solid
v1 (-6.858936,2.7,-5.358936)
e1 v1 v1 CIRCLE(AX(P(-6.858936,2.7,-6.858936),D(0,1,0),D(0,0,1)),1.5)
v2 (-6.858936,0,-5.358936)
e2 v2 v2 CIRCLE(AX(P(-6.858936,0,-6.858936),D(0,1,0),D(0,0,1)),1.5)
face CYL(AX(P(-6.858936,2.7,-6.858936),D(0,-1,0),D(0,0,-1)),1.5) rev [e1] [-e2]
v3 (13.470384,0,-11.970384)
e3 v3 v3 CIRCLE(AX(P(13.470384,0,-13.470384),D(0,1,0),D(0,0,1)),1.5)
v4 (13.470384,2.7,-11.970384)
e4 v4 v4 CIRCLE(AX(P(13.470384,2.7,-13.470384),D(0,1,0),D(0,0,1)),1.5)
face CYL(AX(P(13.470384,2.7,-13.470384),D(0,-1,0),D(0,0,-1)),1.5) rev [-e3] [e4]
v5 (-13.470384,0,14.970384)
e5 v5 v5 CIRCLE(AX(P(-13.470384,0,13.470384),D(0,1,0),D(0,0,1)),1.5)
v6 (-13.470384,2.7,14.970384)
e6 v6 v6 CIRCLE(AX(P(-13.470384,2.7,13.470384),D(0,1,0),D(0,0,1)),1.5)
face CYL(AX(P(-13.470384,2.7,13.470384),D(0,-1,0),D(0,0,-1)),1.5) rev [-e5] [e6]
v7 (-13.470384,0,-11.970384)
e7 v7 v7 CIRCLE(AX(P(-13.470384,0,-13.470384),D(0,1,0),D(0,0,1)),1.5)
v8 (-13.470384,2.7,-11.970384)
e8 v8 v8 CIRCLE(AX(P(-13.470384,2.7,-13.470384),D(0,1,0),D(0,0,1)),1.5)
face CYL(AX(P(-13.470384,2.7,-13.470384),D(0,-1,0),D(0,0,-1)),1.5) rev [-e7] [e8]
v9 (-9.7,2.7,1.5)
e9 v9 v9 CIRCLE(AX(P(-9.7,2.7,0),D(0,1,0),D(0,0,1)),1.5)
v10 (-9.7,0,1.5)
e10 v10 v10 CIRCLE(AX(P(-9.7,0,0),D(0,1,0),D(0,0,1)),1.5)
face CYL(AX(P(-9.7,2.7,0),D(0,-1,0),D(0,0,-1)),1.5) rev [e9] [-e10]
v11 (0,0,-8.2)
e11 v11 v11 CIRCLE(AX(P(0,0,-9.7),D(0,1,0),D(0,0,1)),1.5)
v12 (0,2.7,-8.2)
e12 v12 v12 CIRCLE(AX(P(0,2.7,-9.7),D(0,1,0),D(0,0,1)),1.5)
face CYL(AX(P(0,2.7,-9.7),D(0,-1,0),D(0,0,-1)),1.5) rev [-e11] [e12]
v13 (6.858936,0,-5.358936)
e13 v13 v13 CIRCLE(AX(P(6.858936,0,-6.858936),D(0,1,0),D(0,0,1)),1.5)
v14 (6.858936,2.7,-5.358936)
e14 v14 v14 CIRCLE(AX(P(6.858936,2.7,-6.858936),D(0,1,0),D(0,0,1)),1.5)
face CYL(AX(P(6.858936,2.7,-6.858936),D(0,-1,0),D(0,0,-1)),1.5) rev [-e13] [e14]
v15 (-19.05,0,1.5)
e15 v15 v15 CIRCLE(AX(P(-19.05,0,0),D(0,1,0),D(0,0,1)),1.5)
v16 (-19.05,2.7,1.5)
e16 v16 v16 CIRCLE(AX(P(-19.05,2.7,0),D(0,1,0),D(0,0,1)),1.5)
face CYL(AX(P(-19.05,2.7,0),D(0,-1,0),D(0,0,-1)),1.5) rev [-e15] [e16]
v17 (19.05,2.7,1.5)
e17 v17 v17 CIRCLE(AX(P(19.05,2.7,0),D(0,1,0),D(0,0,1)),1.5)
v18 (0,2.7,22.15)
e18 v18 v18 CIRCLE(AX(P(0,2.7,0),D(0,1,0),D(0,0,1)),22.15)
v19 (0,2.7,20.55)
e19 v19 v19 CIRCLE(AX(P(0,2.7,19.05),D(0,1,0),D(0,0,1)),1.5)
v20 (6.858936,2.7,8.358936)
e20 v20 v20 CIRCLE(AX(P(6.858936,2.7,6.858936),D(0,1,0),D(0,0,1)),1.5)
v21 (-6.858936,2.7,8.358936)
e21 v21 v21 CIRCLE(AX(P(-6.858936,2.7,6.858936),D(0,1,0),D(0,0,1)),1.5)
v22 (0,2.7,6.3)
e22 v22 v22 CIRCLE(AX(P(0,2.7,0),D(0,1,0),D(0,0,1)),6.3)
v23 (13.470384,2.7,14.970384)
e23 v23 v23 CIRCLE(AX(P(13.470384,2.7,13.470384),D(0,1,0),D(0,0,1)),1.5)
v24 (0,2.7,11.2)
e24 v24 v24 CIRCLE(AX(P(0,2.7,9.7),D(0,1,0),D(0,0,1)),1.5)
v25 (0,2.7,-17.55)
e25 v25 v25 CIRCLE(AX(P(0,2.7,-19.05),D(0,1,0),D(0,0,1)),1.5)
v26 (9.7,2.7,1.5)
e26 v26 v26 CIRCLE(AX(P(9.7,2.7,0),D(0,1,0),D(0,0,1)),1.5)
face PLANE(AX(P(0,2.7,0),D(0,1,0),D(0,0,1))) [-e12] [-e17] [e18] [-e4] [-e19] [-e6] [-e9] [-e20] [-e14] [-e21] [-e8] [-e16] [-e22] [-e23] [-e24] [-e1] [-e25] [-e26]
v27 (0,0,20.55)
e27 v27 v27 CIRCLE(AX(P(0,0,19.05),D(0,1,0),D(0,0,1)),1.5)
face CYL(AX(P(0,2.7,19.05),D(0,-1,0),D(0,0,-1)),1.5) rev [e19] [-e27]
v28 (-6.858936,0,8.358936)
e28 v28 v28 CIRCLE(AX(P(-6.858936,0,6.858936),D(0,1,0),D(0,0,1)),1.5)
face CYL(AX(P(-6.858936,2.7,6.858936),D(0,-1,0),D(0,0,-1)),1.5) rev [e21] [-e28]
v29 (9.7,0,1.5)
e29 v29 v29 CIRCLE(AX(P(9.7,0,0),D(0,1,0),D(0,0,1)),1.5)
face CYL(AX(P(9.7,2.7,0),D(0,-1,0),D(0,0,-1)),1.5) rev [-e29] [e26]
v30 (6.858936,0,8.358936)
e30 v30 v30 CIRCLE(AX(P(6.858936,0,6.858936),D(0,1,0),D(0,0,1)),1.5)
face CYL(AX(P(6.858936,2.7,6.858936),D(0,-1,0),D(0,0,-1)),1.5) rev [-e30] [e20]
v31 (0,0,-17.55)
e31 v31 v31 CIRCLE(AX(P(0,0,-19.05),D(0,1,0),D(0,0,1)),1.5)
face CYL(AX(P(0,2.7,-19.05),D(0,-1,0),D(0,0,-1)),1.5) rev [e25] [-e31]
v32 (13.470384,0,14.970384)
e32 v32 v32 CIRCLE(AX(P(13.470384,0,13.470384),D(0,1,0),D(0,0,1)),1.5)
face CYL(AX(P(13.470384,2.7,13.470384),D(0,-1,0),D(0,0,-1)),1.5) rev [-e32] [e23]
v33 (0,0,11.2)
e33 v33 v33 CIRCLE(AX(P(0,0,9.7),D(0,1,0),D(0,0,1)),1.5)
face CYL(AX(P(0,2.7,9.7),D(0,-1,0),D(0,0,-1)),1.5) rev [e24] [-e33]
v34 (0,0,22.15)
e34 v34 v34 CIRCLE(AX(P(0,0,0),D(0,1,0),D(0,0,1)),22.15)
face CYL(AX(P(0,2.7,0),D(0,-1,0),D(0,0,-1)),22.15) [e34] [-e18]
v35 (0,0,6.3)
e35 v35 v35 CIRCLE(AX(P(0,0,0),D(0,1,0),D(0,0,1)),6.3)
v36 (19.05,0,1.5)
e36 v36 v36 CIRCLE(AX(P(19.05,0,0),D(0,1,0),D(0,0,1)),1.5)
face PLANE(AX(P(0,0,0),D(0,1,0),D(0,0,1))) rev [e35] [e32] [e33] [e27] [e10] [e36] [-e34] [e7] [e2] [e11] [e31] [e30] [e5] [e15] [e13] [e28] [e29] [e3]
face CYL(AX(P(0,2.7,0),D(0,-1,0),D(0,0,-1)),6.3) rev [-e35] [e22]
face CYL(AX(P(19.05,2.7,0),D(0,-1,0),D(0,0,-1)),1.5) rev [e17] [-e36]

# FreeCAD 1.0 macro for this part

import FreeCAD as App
import Part
import Sketcher

doc = App.newDocument("Part")
body = doc.addObject("PartDesign::Body", "Body")

# Sketch on XZ plane
sketch1 = body.newObject("Sketcher::SketchObject", "Sketch")
sketch1.AttachmentSupport = (doc.getObject("XZ_Plane"), [""])
sketch1.MapMode = "FlatFace"
sketch1.addGeometry([
    Part.Circle(App.Vector(0, 0, 0), App.Vector(0, 0, 1), 22.15),  # 0
    Part.Circle(App.Vector(-13.470384, 13.470384, 0), App.Vector(0, 0, 1), 1.5),  # 1
    Part.Circle(App.Vector(-6.858936, 6.858936, 0), App.Vector(0, 0, 1), 1.5),  # 2
    Part.Circle(App.Vector(0, 19.05, 0), App.Vector(0, 0, 1), 1.5),  # 3
    Part.Circle(App.Vector(13.470384, 13.470384, 0), App.Vector(0, 0, 1), 1.5),  # 4
    Part.Circle(App.Vector(0, 9.7, 0), App.Vector(0, 0, 1), 1.5),  # 5
    Part.Circle(App.Vector(6.858936, 6.858936, 0), App.Vector(0, 0, 1), 1.5),  # 6
    Part.Circle(App.Vector(-19.05, 0, 0), App.Vector(0, 0, 1), 1.5),  # 7
    Part.Circle(App.Vector(-9.7, 0, 0), App.Vector(0, 0, 1), 1.5),  # 8
    Part.Circle(App.Vector(-6.858936, -6.858936, 0), App.Vector(0, 0, 1), 1.5),  # 9
    Part.Circle(App.Vector(-13.470384, -13.470384, 0), App.Vector(0, 0, 1), 1.5),  # 10
    Part.Circle(App.Vector(0, 0, 0), App.Vector(0, 0, 1), 6.3),  # 11
    Part.Circle(App.Vector(9.7, 0, 0), App.Vector(0, 0, 1), 1.5),  # 12
    Part.Circle(App.Vector(0, -9.7, 0), App.Vector(0, 0, 1), 1.5),  # 13
    Part.Circle(App.Vector(6.858936, -6.858936, 0), App.Vector(0, 0, 1), 1.5),  # 14
    Part.Circle(App.Vector(19.05, 0, 0), App.Vector(0, 0, 1), 1.5),  # 15
    Part.Circle(App.Vector(0, -19.05, 0), App.Vector(0, 0, 1), 1.5),  # 16
    Part.Circle(App.Vector(13.470384, -13.470384, 0), App.Vector(0, 0, 1), 1.5),  # 17
], False)
sketch1.addConstraint([
    Sketcher.Constraint("Coincident", 0, 3, -1, 1),
    Sketcher.Constraint("Coincident", 11, 3, -1, 1),
    Sketcher.Constraint("Equal", 1, 2),
    Sketcher.Constraint("Equal", 2, 3),
    Sketcher.Constraint("Equal", 3, 4),
    Sketcher.Constraint("Equal", 4, 5),
    Sketcher.Constraint("Equal", 5, 6),
    Sketcher.Constraint("Equal", 6, 7),
    Sketcher.Constraint("Equal", 7, 8),
    Sketcher.Constraint("Equal", 8, 9),
    Sketcher.Constraint("Equal", 9, 10),
    Sketcher.Constraint("Equal", 10, 12),
    Sketcher.Constraint("Equal", 12, 13),
    Sketcher.Constraint("Equal", 13, 14),
    Sketcher.Constraint("Equal", 14, 15),
    Sketcher.Constraint("Equal", 15, 16),
    Sketcher.Constraint("Equal", 16, 17),
    Sketcher.Constraint("Symmetric", 6, 3, 9, 3, -1, 1),
    Sketcher.Constraint("Symmetric", 4, 3, 10, 3, -1, 1),
    Sketcher.Constraint("Symmetric", 8, 3, 12, 3, -1, 1),
    Sketcher.Constraint("Symmetric", 5, 3, 13, 3, -1, 1),
    Sketcher.Constraint("Symmetric", 2, 3, 14, 3, -1, 1),
    Sketcher.Constraint("Symmetric", 7, 3, 15, 3, -1, 1),
    Sketcher.Constraint("Symmetric", 3, 3, 16, 3, -1, 1),
    Sketcher.Constraint("Symmetric", 1, 3, 17, 3, -1, 1),
    Sketcher.Constraint("Symmetric", 1, 3, 4, 3, -2),
    Sketcher.Constraint("Symmetric", 2, 3, 6, 3, -2),
    Sketcher.Constraint("PointOnObject", 3, 3, -2),
    Sketcher.Constraint("PointOnObject", 5, 3, -2),
    Sketcher.Constraint("PointOnObject", 7, 3, -1),
    Sketcher.Constraint("PointOnObject", 8, 3, -1),
    Sketcher.Constraint("Diameter", 1, 3.0),
    Sketcher.Constraint("Diameter", 0, 44.3),
    Sketcher.Constraint("Diameter", 11, 12.6),
    Sketcher.Constraint("DistanceY", -1, 1, 5, 3, 9.7),
    Sketcher.Constraint("DistanceX", 8, 3, -1, 1, 9.7),
    Sketcher.Constraint("DistanceY", -1, 1, 3, 3, 19.05),
    Sketcher.Constraint("DistanceX", 7, 3, -1, 1, 19.05),
    Sketcher.Constraint("DistanceX", 1, 3, 2, 3, 6.611448),
    Sketcher.Constraint("DistanceY", 2, 3, 1, 3, 6.611448),
    Sketcher.Constraint("DistanceX", 2, 3, 4, 3, 20.32932),
    Sketcher.Constraint("DistanceY", 9, 3, 2, 3, 13.717872),
])
pad1 = body.newObject("PartDesign::Pad", "Pad")
pad1.Profile = sketch1
pad1.Length = 2.7
pad1.Reversed = True

doc.recompute()
